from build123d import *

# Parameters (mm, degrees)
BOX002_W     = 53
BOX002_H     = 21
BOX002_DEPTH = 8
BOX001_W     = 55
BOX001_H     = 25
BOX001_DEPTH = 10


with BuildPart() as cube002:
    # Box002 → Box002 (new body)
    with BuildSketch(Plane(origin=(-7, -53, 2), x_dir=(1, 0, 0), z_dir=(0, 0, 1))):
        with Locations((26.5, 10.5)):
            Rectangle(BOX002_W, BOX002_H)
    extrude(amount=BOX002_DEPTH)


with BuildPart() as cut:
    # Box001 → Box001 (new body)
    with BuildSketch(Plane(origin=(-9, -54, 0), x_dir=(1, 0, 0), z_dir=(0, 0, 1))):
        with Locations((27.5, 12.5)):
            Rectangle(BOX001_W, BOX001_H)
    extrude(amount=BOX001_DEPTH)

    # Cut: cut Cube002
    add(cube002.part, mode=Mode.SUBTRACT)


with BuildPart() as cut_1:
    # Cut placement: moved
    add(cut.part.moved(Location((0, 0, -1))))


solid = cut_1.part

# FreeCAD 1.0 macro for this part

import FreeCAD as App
import Part
import Sketcher
from FreeCAD import Vector
Q = App.Units.Quantity

doc = App.newDocument("Part")
body = doc.addObject("PartDesign::Body", "Body")

sketch1 = doc.addObject("Sketcher::SketchObject", "Sketch")
body.addObject(sketch1)
sketch1.AttachmentSupport = (doc.XY_Plane, [""])
sketch1.MapMode = "FlatFace"
sketch1.AttachmentOffset = App.Placement(Vector(0, 0, 2), App.Rotation())
sketch1.addGeometry([
    Part.LineSegment(Vector(-7, -32, 0), Vector(-7, -53, 0)),
    Part.LineSegment(Vector(-7, -53, 0), Vector(46, -53, 0)),
    Part.LineSegment(Vector(46, -53, 0), Vector(46, -32, 0)),
    Part.LineSegment(Vector(46, -32, 0), Vector(-7, -32, 0)),
], False)
sketch1.addConstraint([
    Sketcher.Constraint("Coincident", 0, 2, 1, 1),
    Sketcher.Constraint("Coincident", 1, 2, 2, 1),
    Sketcher.Constraint("Coincident", 2, 2, 3, 1),
    Sketcher.Constraint("Coincident", 3, 2, 0, 1),
    Sketcher.Constraint("Vertical", 0),
    Sketcher.Constraint("Horizontal", 1),
    Sketcher.Constraint("Vertical", 2),
    Sketcher.Constraint("Horizontal", 3),
    Sketcher.Constraint("DistanceX", 1, 1, 1, 2, Q("53 mm")),
    Sketcher.Constraint("DistanceY", 0, 2, 0, 1, Q("21 mm")),
    Sketcher.Constraint("DistanceX", 0, 2, -1, 1, Q("7 mm")),
    Sketcher.Constraint("DistanceY", 0, 2, -1, 1, Q("53 mm")),
])
pad1 = doc.addObject("PartDesign::Pad", "Pad")
body.addObject(pad1)
pad1.Profile = sketch1
pad1.Length = 8
body2 = doc.addObject("PartDesign::Body", "Body001")

sketch2 = doc.addObject("Sketcher::SketchObject", "Sketch001")
body2.addObject(sketch2)
sketch2.AttachmentSupport = (doc.getObject("XY_Plane001"), [""])
sketch2.MapMode = "FlatFace"
sketch2.addGeometry([
    Part.LineSegment(Vector(-9, -29, 0), Vector(-9, -54, 0)),
    Part.LineSegment(Vector(-9, -54, 0), Vector(46, -54, 0)),
    Part.LineSegment(Vector(46, -54, 0), Vector(46, -29, 0)),
    Part.LineSegment(Vector(46, -29, 0), Vector(-9, -29, 0)),
], False)
sketch2.addConstraint([
    Sketcher.Constraint("Coincident", 0, 2, 1, 1),
    Sketcher.Constraint("Coincident", 1, 2, 2, 1),
    Sketcher.Constraint("Coincident", 2, 2, 3, 1),
    Sketcher.Constraint("Coincident", 3, 2, 0, 1),
    Sketcher.Constraint("Vertical", 0),
    Sketcher.Constraint("Horizontal", 1),
    Sketcher.Constraint("Vertical", 2),
    Sketcher.Constraint("Horizontal", 3),
    Sketcher.Constraint("DistanceX", 1, 1, 1, 2, Q("55 mm")),
    Sketcher.Constraint("DistanceY", 0, 2, 0, 1, Q("25 mm")),
    Sketcher.Constraint("DistanceX", 0, 2, -1, 1, Q("9 mm")),
    Sketcher.Constraint("DistanceY", 0, 2, -1, 1, Q("54 mm")),
])
pad2 = doc.addObject("PartDesign::Pad", "Pad001")
body2.addObject(pad2)
pad2.Profile = sketch2
pad2.Length = 10
doc.recompute()

boolean = doc.addObject("PartDesign::Boolean", "Boolean")
body2.addObject(boolean)
boolean.Type = "Cut"
boolean.addObjects([body])
body3 = doc.addObject("PartDesign::Body", "Body002")
doc.recompute()

body2.Placement = App.Placement(Vector(0, 0, -1), App.Rotation(Vector(0, 0, 1), 0))
boolean2 = doc.addObject("PartDesign::Boolean", "Boolean001")
body3.addObject(boolean2)
boolean2.Type = "Fuse"
boolean2.addObjects([body2])

doc.recompute()
